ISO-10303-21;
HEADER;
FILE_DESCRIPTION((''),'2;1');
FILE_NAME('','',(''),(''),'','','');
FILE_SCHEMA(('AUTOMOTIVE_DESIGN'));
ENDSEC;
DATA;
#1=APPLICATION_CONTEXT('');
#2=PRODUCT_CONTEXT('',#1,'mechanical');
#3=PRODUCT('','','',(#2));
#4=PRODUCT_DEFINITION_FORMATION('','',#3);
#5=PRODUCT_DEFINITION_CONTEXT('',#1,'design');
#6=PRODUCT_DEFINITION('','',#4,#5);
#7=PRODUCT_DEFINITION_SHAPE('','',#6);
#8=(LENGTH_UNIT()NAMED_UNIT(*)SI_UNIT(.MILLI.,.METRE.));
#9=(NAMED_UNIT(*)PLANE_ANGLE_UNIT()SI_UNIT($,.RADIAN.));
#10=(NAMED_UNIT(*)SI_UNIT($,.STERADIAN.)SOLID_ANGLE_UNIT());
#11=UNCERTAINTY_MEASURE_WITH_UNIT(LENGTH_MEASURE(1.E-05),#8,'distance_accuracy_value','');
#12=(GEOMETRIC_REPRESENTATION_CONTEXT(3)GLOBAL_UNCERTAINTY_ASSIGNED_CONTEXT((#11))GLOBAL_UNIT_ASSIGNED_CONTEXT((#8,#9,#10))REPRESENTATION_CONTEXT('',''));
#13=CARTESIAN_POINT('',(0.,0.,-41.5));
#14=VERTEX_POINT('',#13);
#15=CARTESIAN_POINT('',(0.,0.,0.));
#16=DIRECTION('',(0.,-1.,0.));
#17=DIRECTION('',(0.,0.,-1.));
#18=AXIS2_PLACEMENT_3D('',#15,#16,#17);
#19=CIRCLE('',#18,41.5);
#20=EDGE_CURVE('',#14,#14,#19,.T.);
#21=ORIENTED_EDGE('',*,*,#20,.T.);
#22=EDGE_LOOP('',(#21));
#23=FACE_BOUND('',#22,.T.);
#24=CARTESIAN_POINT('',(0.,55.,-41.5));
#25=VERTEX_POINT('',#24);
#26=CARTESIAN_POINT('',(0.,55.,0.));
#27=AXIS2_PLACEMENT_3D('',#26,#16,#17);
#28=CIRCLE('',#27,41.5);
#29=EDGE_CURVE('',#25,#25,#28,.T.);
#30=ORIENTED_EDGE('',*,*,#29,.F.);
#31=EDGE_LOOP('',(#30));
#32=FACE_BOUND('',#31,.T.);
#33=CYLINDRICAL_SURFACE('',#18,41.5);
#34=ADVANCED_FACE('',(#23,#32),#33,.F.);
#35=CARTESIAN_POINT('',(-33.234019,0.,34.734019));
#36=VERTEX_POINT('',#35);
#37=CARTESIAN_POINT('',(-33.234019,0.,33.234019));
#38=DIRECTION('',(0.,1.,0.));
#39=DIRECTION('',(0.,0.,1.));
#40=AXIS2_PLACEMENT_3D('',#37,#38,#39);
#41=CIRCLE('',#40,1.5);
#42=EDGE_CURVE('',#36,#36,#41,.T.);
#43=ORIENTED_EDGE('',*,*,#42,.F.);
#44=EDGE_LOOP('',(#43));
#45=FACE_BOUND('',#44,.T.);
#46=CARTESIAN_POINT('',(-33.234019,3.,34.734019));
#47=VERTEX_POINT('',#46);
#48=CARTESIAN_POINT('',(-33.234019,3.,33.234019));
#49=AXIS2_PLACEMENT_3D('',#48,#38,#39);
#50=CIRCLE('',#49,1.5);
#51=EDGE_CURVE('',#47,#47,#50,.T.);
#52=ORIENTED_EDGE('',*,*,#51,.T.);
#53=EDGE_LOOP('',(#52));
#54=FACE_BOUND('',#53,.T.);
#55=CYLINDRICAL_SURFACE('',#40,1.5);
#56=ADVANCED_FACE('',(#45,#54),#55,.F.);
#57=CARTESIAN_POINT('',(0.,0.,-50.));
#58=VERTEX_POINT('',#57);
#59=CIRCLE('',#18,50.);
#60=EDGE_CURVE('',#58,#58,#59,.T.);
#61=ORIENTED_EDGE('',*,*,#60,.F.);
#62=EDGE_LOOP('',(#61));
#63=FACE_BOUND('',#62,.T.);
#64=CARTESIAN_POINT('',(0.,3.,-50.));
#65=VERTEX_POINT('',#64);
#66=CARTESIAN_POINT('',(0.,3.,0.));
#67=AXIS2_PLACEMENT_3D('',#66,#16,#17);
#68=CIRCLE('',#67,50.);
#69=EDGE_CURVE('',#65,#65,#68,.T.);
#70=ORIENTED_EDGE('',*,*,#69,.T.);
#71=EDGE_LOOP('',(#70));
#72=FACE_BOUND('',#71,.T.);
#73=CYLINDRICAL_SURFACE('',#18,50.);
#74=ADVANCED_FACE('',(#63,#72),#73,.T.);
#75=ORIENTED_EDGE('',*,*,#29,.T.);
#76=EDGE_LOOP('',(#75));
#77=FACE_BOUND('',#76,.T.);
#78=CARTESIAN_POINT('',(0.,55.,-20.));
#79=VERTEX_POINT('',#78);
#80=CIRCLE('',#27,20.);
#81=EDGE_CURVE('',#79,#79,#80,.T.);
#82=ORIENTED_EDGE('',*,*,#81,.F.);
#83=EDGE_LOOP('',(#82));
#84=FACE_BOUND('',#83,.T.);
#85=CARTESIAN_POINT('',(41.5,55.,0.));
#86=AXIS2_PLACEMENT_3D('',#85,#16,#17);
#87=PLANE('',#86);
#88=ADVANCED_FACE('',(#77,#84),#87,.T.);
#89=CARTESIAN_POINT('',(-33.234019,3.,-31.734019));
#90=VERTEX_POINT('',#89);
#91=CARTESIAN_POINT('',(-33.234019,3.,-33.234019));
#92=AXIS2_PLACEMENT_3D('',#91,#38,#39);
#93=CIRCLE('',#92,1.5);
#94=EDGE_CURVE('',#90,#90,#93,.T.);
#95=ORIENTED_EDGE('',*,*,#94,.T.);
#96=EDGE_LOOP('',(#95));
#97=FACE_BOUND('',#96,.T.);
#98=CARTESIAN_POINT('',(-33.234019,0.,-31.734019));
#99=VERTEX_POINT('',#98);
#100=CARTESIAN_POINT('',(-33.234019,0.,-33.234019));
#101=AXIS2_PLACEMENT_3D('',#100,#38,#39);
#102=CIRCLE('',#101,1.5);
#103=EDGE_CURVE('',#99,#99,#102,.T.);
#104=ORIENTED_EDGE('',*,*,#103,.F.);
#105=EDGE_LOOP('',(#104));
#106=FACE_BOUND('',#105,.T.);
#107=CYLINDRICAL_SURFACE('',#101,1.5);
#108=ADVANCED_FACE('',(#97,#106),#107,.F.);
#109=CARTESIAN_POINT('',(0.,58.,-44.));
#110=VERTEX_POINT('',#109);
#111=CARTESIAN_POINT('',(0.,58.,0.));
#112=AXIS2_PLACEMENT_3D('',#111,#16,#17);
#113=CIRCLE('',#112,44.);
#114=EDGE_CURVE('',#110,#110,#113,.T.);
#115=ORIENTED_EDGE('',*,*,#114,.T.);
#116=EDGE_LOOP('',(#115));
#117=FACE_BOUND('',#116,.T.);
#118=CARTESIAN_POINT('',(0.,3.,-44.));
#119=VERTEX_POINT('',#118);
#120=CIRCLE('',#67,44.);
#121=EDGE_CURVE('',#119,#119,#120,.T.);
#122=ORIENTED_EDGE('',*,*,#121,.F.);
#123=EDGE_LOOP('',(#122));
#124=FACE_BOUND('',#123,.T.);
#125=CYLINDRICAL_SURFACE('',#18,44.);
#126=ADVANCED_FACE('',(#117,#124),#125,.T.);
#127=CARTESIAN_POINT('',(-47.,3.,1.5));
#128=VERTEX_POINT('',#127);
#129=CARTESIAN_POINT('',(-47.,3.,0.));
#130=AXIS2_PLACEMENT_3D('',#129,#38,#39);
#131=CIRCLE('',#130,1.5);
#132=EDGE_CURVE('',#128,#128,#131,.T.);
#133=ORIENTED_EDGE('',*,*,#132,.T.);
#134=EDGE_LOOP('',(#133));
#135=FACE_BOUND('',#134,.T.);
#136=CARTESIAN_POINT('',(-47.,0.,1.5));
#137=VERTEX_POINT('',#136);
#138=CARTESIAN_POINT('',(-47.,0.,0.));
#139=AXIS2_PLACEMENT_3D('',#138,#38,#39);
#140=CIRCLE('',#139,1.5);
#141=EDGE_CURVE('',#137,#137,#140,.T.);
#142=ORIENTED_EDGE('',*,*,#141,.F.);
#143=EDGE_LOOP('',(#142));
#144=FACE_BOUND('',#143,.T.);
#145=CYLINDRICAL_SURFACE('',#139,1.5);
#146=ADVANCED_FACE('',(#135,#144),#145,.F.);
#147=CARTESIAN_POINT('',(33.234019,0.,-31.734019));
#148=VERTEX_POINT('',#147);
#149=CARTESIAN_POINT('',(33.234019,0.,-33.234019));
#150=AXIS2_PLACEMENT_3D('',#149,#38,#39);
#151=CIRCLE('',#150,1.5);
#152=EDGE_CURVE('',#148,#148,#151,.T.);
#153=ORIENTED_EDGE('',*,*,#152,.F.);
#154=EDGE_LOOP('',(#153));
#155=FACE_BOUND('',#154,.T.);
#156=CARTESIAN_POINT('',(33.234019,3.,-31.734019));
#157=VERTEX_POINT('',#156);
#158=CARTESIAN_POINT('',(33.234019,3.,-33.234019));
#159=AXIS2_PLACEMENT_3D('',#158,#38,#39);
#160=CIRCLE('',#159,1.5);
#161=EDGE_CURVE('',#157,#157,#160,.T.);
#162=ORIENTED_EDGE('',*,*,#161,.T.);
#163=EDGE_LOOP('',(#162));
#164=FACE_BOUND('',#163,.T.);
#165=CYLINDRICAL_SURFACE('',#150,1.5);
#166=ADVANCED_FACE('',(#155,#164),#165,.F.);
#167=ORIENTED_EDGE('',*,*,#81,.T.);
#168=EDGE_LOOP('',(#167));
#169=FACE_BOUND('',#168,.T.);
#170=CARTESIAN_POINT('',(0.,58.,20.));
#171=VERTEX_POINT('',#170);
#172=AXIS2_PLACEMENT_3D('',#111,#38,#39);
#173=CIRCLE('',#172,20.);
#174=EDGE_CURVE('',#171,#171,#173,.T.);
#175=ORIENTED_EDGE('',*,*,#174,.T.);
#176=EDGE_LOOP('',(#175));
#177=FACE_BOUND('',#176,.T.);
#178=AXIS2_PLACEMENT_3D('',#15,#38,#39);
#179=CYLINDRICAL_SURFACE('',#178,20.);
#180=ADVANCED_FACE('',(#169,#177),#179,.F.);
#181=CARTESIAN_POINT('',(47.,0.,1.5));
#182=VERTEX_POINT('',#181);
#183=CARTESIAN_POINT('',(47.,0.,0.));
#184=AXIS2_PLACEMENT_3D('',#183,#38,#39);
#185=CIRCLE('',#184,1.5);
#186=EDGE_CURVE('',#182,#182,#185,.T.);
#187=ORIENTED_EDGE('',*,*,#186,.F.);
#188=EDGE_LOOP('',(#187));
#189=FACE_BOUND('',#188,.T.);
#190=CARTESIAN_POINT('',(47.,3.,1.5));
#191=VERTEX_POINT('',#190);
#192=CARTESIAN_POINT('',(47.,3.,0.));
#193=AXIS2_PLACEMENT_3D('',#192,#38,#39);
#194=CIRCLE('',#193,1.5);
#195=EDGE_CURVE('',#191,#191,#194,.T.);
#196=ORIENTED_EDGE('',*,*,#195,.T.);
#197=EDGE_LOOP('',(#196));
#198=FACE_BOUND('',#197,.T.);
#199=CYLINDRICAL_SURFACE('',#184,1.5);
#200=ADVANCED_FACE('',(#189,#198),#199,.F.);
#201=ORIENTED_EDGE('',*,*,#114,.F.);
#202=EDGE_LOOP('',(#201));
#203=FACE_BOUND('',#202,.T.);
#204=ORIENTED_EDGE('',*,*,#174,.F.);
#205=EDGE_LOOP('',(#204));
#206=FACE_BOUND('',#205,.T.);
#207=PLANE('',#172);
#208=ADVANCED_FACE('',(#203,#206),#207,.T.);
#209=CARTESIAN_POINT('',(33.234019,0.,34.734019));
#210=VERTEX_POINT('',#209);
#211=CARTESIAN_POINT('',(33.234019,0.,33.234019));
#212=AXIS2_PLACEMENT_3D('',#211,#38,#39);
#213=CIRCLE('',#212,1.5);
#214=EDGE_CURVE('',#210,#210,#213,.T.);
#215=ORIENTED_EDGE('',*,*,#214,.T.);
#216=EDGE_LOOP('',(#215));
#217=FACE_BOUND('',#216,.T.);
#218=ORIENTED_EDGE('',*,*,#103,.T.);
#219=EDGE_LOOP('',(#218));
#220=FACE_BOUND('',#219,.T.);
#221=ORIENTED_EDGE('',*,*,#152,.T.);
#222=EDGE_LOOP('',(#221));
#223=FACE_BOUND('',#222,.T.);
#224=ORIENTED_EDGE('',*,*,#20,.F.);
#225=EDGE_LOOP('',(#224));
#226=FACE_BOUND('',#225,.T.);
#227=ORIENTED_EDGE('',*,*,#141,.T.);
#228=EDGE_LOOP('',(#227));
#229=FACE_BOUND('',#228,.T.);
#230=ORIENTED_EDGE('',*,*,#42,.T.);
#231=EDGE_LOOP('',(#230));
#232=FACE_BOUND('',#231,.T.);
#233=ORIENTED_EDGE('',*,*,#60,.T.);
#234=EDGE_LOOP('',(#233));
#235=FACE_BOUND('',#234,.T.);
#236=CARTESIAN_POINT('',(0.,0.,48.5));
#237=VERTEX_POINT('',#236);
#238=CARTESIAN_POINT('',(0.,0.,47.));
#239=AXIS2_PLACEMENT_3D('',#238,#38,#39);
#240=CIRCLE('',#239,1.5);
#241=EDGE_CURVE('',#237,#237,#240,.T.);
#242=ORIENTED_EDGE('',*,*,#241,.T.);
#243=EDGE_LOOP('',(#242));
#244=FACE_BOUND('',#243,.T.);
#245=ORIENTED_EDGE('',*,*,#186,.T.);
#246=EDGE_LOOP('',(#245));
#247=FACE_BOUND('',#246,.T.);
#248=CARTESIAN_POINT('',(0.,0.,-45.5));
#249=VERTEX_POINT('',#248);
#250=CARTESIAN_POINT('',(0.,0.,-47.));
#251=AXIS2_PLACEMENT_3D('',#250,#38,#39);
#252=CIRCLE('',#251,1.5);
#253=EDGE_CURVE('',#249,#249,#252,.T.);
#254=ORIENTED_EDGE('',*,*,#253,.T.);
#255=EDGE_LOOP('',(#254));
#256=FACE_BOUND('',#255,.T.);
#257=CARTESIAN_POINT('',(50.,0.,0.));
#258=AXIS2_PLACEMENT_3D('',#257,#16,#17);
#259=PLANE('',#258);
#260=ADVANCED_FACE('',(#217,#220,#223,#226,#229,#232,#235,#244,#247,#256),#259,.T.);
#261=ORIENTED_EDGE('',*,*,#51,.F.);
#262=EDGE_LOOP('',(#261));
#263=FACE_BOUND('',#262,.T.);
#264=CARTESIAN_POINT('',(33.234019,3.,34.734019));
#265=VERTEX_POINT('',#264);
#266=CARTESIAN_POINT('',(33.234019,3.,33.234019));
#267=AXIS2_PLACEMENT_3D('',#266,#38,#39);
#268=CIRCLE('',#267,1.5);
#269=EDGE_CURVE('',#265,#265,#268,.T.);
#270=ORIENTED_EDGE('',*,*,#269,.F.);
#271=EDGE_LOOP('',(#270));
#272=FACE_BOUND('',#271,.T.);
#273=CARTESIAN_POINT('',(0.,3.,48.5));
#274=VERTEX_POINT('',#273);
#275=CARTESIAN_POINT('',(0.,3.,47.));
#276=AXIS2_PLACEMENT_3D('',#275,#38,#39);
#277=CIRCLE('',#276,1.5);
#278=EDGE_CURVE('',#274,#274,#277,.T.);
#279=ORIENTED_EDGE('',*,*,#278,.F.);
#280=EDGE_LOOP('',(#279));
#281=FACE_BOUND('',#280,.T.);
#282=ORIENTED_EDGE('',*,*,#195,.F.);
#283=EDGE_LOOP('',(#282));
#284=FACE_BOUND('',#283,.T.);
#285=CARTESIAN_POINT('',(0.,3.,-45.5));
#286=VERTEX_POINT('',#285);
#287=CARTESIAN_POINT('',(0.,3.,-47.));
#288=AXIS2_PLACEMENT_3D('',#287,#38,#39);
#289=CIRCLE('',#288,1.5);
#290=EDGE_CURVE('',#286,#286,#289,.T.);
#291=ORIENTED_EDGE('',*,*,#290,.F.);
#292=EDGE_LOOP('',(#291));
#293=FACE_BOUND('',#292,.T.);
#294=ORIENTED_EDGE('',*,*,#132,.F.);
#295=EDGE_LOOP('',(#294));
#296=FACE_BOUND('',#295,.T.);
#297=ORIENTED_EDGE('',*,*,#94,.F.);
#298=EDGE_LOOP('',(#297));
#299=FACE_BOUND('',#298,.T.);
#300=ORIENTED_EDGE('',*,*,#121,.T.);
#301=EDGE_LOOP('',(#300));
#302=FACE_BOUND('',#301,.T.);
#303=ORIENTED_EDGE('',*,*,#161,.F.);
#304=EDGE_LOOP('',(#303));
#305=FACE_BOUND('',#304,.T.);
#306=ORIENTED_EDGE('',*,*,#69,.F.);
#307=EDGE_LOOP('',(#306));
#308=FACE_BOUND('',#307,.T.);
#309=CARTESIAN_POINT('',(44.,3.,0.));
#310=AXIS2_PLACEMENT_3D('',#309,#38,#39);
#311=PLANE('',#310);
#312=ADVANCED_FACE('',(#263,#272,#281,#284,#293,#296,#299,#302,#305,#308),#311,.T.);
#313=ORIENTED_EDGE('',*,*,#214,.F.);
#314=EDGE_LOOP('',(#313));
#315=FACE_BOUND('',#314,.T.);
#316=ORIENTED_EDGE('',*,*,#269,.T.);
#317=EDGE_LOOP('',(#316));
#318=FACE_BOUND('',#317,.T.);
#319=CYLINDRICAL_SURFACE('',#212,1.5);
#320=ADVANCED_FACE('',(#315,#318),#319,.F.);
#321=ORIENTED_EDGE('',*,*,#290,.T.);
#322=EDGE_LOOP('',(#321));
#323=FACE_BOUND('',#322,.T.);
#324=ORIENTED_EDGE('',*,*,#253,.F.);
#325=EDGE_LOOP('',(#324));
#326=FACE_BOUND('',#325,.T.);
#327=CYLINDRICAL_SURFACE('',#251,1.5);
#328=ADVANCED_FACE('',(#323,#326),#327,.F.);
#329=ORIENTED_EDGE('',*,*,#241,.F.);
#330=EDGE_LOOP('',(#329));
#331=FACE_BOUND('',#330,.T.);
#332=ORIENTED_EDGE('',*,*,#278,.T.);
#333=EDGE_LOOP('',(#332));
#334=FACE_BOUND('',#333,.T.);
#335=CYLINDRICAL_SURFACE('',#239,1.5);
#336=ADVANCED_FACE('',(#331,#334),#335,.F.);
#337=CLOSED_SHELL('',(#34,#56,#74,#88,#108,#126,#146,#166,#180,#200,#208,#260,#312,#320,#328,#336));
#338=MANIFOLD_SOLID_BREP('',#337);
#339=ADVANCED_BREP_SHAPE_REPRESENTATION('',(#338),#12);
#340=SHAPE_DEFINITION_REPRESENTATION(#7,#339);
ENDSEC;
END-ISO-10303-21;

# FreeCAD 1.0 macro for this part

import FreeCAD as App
import Part
import Sketcher


def add_polygon(sketch, points):
    """Adds a closed chain of lines whose ends are joined by coincident constraints."""
    first, n = sketch.GeometryCount, len(points)
    for a, b in zip(points, points[1:] + points[:1]):
        sketch.addGeometry(Part.LineSegment(App.Vector(*a, 0), App.Vector(*b, 0)), False)
    for i in range(n):
        sketch.addConstraint(Sketcher.Constraint("Coincident", first + i, 2, first + (i + 1) % n, 1))

doc = App.newDocument("Part")
body = doc.addObject("PartDesign::Body", "Body")

# Sketch on XY plane
sketch1 = body.newObject("Sketcher::SketchObject", "Sketch")
sketch1.AttachmentSupport = (doc.getObject("XY_Plane"), [""])
sketch1.MapMode = "FlatFace"
add_polygon(sketch1, [(44, 58), (0, 58), (0, 55), (41.5, 55), (41.5, 0), (50, 0), (50, 3), (44, 3)])  # lines 0-7
sketch1.addConstraint(Sketcher.Constraint("Horizontal", 0))
sketch1.addConstraint(Sketcher.Constraint("Vertical", 1))
sketch1.addConstraint(Sketcher.Constraint("Horizontal", 2))
sketch1.addConstraint(Sketcher.Constraint("Vertical", 3))
sketch1.addConstraint(Sketcher.Constraint("Horizontal", 4))
sketch1.addConstraint(Sketcher.Constraint("Vertical", 5))
sketch1.addConstraint(Sketcher.Constraint("Horizontal", 6))
sketch1.addConstraint(Sketcher.Constraint("Vertical", 7))
sketch1.addConstraint(Sketcher.Constraint("PointOnObject", 0, 2, -2))
sketch1.addConstraint(Sketcher.Constraint("PointOnObject", 3, 2, -1))
sketch1.addConstraint(Sketcher.Constraint("Equal", 1, 5))
sketch1.addConstraint(Sketcher.Constraint("DistanceX", 0, 2, 0, 1, 44.0))
sketch1.addConstraint(Sketcher.Constraint("DistanceX", 6, 2, 6, 1, 6.0))
sketch1.addConstraint(Sketcher.Constraint("DistanceY", 1, 2, 1, 1, 3.0))
sketch1.addConstraint(Sketcher.Constraint("DistanceY", 3, 2, 3, 1, 55.0))
sketch1.addConstraint(Sketcher.Constraint("DistanceX", 2, 1, 2, 2, 41.5))
revolution = body.newObject("PartDesign::Revolution", "Revolution")
revolution.Profile = sketch1
revolution.ReferenceAxis = (sketch1, ["V_Axis"])
revolution.Angle = 360

# Sketch on XZ plane
sketch2 = body.newObject("Sketcher::SketchObject", "Sketch001")
sketch2.AttachmentSupport = (doc.getObject("XZ_Plane"), [""])
sketch2.MapMode = "FlatFace"
sketch2.AttachmentOffset = App.Placement(App.Vector(0, 0, -3), App.Rotation())
sketch2.addGeometry(Part.Circle(App.Vector(0, 47, 0), App.Vector(0, 0, 1), 1.5), False)
sketch2.addGeometry(Part.Circle(App.Vector(-33.2, 33.2, 0), App.Vector(0, 0, 1), 1.5), False)
sketch2.addGeometry(Part.Circle(App.Vector(-47, 0, 0), App.Vector(0, 0, 1), 1.5), False)
sketch2.addGeometry(Part.Circle(App.Vector(-33.2, -33.2, 0), App.Vector(0, 0, 1), 1.5), False)
sketch2.addGeometry(Part.Circle(App.Vector(0, -47, 0), App.Vector(0, 0, 1), 1.5), False)
sketch2.addGeometry(Part.Circle(App.Vector(33.2, -33.2, 0), App.Vector(0, 0, 1), 1.5), False)
sketch2.addGeometry(Part.Circle(App.Vector(47, 0, 0), App.Vector(0, 0, 1), 1.5), False)
sketch2.addGeometry(Part.Circle(App.Vector(33.2, 33.2, 0), App.Vector(0, 0, 1), 1.5), False)
sketch2.addConstraint(Sketcher.Constraint("Equal", 0, 1))
sketch2.addConstraint(Sketcher.Constraint("Equal", 1, 2))
sketch2.addConstraint(Sketcher.Constraint("Equal", 2, 3))
sketch2.addConstraint(Sketcher.Constraint("Equal", 3, 4))
sketch2.addConstraint(Sketcher.Constraint("Equal", 4, 5))
sketch2.addConstraint(Sketcher.Constraint("Equal", 5, 6))
sketch2.addConstraint(Sketcher.Constraint("Equal", 6, 7))
sketch2.addConstraint(Sketcher.Constraint("Symmetric", 0, 3, 4, 3, -1, 1))
sketch2.addConstraint(Sketcher.Constraint("Symmetric", 1, 3, 5, 3, -1, 1))
sketch2.addConstraint(Sketcher.Constraint("Symmetric", 2, 3, 6, 3, -1, 1))
sketch2.addConstraint(Sketcher.Constraint("Symmetric", 3, 3, 7, 3, -1, 1))
sketch2.addConstraint(Sketcher.Constraint("Symmetric", 3, 3, 5, 3, -2))
sketch2.addConstraint(Sketcher.Constraint("PointOnObject", 0, 3, -2))
sketch2.addConstraint(Sketcher.Constraint("PointOnObject", 2, 3, -1))
sketch2.addConstraint(Sketcher.Constraint("Diameter", 0, 3.0))
sketch2.addConstraint(Sketcher.Constraint("DistanceY", -1, 1, 0, 3, 47.0))
sketch2.addConstraint(Sketcher.Constraint("DistanceX", 2, 3, -1, 1, 47.0))
sketch2.addConstraint(Sketcher.Constraint("DistanceX", 1, 3, -1, 1, 33.234019))
sketch2.addConstraint(Sketcher.Constraint("DistanceY", -1, 1, 1, 3, 33.234019))
pocket1 = body.newObject("PartDesign::Pocket", "Pocket")
pocket1.Profile = sketch2
pocket1.Type = "ThroughAll"
pocket1.Reversed = True

# Sketch on XZ plane
sketch3 = body.newObject("Sketcher::SketchObject", "Sketch002")
sketch3.AttachmentSupport = (doc.getObject("XZ_Plane"), [""])
sketch3.MapMode = "FlatFace"
sketch3.AttachmentOffset = App.Placement(App.Vector(0, 0, -58), App.Rotation())
sketch3.addGeometry(Part.Circle(App.Vector(0, 0, 0), App.Vector(0, 0, 1), 20), False)
sketch3.addConstraint(Sketcher.Constraint("Coincident", 0, 3, -1, 1))
sketch3.addConstraint(Sketcher.Constraint("Diameter", 0, 40.0))
pocket2 = body.newObject("PartDesign::Pocket", "Pocket001")
pocket2.Profile = sketch3
pocket2.Type = "ThroughAll"
pocket2.Reversed = True

doc.recompute()
